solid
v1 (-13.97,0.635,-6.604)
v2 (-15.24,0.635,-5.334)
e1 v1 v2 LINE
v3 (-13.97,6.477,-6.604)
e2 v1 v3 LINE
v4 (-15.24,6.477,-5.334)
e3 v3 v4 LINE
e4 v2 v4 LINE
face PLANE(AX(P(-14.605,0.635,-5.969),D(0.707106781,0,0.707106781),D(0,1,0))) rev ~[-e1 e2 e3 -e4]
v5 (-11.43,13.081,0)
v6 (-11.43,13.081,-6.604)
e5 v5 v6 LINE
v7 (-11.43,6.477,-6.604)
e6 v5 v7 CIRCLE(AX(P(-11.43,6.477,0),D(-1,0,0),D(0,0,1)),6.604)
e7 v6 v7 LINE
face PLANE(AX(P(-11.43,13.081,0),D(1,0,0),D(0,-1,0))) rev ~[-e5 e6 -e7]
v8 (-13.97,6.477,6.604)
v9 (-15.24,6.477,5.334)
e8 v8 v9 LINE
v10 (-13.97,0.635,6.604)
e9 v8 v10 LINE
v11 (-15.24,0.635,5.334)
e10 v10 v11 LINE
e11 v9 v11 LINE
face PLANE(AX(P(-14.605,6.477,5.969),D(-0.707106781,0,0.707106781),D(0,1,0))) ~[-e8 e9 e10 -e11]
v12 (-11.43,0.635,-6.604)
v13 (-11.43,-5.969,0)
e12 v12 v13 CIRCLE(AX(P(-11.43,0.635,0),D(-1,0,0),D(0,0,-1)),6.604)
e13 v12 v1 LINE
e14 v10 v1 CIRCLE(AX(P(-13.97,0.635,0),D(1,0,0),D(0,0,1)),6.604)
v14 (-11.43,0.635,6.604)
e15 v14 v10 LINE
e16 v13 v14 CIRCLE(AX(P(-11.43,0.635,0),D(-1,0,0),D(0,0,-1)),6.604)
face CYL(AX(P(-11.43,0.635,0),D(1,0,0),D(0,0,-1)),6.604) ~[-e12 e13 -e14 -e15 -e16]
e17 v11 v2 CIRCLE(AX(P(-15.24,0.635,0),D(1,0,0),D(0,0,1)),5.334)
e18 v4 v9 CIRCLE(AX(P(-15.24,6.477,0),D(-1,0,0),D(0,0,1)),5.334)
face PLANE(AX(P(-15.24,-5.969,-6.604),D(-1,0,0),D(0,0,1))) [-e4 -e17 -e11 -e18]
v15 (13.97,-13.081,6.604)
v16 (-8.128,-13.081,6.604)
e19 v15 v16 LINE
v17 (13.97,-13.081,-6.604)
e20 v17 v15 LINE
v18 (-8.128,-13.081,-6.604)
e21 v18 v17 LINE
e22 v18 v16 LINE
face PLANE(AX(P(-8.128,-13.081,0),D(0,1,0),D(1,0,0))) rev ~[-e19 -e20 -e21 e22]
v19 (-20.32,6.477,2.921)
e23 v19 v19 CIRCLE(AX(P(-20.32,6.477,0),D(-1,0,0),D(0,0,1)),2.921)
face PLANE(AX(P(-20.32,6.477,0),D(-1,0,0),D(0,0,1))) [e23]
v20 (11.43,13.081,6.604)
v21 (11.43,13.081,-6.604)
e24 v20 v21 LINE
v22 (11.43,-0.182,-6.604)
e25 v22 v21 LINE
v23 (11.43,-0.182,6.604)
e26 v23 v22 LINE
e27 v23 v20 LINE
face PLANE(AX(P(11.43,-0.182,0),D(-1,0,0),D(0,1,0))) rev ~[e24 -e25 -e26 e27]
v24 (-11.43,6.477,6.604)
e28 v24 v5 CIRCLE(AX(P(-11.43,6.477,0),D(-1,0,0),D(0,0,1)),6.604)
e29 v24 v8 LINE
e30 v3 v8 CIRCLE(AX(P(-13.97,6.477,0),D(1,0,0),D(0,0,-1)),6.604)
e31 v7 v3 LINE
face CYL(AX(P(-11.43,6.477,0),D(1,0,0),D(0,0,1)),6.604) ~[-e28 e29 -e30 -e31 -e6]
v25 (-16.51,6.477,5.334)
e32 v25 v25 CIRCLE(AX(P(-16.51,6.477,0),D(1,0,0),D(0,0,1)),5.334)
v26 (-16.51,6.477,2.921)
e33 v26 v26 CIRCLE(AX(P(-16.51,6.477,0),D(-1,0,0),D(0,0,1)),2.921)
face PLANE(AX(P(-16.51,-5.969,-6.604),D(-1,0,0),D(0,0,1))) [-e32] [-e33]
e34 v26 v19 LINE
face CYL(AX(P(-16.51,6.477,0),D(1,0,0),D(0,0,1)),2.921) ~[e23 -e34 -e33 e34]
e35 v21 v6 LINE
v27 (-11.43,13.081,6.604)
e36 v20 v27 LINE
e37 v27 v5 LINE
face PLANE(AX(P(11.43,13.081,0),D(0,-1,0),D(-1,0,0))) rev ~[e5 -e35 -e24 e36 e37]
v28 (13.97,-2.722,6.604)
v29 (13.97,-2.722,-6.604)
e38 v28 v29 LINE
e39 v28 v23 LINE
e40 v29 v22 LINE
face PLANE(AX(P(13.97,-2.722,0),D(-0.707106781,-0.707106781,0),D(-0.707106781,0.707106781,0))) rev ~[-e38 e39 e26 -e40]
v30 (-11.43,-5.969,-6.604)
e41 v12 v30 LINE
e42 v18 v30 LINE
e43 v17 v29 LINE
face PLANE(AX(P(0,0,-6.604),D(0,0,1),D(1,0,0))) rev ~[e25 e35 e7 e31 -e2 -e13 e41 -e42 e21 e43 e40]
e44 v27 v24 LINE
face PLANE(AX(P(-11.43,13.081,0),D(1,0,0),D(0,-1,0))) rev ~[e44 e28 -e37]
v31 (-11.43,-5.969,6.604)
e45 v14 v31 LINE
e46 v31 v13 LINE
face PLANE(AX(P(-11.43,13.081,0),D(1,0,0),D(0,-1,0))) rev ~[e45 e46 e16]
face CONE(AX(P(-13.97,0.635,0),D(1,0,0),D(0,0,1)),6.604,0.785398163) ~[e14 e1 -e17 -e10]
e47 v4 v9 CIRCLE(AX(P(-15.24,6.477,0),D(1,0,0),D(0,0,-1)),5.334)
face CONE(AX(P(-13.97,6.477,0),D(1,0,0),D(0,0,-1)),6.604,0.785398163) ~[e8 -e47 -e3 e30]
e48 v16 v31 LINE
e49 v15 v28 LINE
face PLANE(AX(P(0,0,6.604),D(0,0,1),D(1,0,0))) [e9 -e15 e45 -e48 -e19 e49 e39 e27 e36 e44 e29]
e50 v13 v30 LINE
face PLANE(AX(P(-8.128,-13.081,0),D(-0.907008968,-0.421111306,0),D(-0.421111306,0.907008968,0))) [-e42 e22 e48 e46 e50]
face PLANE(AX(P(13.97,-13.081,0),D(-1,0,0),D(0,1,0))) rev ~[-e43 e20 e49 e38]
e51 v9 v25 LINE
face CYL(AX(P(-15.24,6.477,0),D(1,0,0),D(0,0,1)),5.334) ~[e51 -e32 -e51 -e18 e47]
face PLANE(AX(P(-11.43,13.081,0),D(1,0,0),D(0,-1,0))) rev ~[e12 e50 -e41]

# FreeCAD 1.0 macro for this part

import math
import FreeCAD as App
import Part
import Sketcher
Q = App.Units.Quantity


def edges_at(feature, points):
    """Names of the edges that pass closest to the given points."""
    edges = feature.Shape.Edges
    near = lambda p: min(range(len(edges)), key=lambda i: edges[i].distToShape(Part.Vertex(*p))[0])
    return sorted({f"Edge{near(p) + 1}" for p in points})

doc = App.newDocument("Part")
params = doc.addObject("Spreadsheet::Sheet", "Params")
for row, (alias, value) in enumerate([
    ("sketch1_width", "0.9 in"),
    ("pad1_length", "0.52 in"),
    ("sketch2_radius", "0.26 in"),
    ("sketch2_width", "0.23 in"),
    ("pad2_length", "0.15 in"),
    ("chamfer_size", "0.05 in"),
    ("sketch3_diameter", "0.42 in"),
    ("pad3_length", "0.05 in"),
    ("sketch4_diameter", "0.23 in"),
    ("pad4_length", "0.15 in"),
], start=1):
    params.set(f"A{row}", alias)
    params.set(f"B{row}", "=" + value)
    params.setAlias(f"B{row}", alias)

body = doc.addObject("PartDesign::Body", "Body")

# Sketch on XY plane
sketch1 = body.newObject("Sketcher::SketchObject", "Sketch")
sketch1.AttachmentSupport = (doc.getObject("XY_Plane"), [""])
sketch1.MapMode = "FlatFace"
sketch1.addGeometry(Part.LineSegment(App.Vector(-11.43, -5.969, 0), App.Vector(-8.128, -13.081, 0)), False)
sketch1.addGeometry(Part.LineSegment(App.Vector(-8.128, -13.081, 0), App.Vector(13.97, -13.081, 0)), False)
sketch1.addGeometry(Part.LineSegment(App.Vector(13.97, -13.081, 0), App.Vector(13.97, -2.722, 0)), False)
sketch1.addGeometry(Part.LineSegment(App.Vector(13.97, -2.722, 0), App.Vector(11.43, -0.182, 0)), False)
sketch1.addGeometry(Part.LineSegment(App.Vector(11.43, -0.182, 0), App.Vector(11.43, 13.081, 0)), False)
sketch1.addGeometry(Part.LineSegment(App.Vector(11.43, 13.081, 0), App.Vector(-11.43, 13.081, 0)), False)
sketch1.addGeometry(Part.LineSegment(App.Vector(-11.43, 13.081, 0), App.Vector(-11.43, -5.969, 0)), False)
sketch1.addConstraint(Sketcher.Constraint("Coincident", 0, 2, 1, 1))
sketch1.addConstraint(Sketcher.Constraint("Coincident", 1, 2, 2, 1))
sketch1.addConstraint(Sketcher.Constraint("Coincident", 2, 2, 3, 1))
sketch1.addConstraint(Sketcher.Constraint("Coincident", 3, 2, 4, 1))
sketch1.addConstraint(Sketcher.Constraint("Coincident", 4, 2, 5, 1))
sketch1.addConstraint(Sketcher.Constraint("Coincident", 5, 2, 6, 1))
sketch1.addConstraint(Sketcher.Constraint("Coincident", 6, 2, 0, 1))
sketch1.addConstraint(Sketcher.Constraint("Horizontal", 1))
sketch1.addConstraint(Sketcher.Constraint("Vertical", 2))
sketch1.addConstraint(Sketcher.Constraint("Vertical", 4))
sketch1.addConstraint(Sketcher.Constraint("Horizontal", 5))
sketch1.addConstraint(Sketcher.Constraint("Vertical", 6))
sketch1.addConstraint(Sketcher.Constraint("DistanceX", 5, 2, 5, 1, Q("0.9 in")))
sketch1.addConstraint(Sketcher.Constraint("Angle", 3, Q("135 deg")))
sketch1.addConstraint(Sketcher.Constraint("DistanceX", 3, 2, 2, 2, Q("0.1 in")))
sketch1.addConstraint(Sketcher.Constraint("DistanceX", 0, 2, 3, 2, Q("0.77 in")))
sketch1.addConstraint(Sketcher.Constraint("DistanceY", 1, 2, 4, 2, Q("1.03 in")))
sketch1.addConstraint(Sketcher.Constraint("DistanceY", 0, 2, 6, 2, Q("0.28 in")))
sketch1.addConstraint(Sketcher.Constraint("DistanceX", 0, 2, -1, 1, Q("0.32 in")))
sketch1.addConstraint(Sketcher.Constraint("DistanceY", 0, 2, -1, 1, Q("0.515 in")))
sketch1.addConstraint(Sketcher.Constraint("DistanceY", 2, 1, 2, 2, Q("10.359 mm")))
sketch1.setExpression("Constraints[12]", "Params.sketch1_width")
pad1 = body.newObject("PartDesign::Pad", "Pad")
pad1.Profile = sketch1
pad1.setExpression("Length", "Params.pad1_length")
pad1.Midplane = True

# Sketch on YZ plane
sketch2 = body.newObject("Sketcher::SketchObject", "Sketch001")
sketch2.AttachmentSupport = (doc.getObject("YZ_Plane"), [""])
sketch2.MapMode = "FlatFace"
sketch2.AttachmentOffset = App.Placement(App.Vector(0, 0, -0.45 * 25.4), App.Rotation())
sketch2.addGeometry(Part.ArcOfCircle(Part.Circle(App.Vector(0.635, 0, 0), App.Vector(0, 0, 1), 6.604), math.radians(90), math.radians(270)), False)
sketch2.addGeometry(Part.LineSegment(App.Vector(0.635, 6.604, 0), App.Vector(6.477, 6.604, 0)), False)
sketch2.addGeometry(Part.ArcOfCircle(Part.Circle(App.Vector(6.477, 0, 0), App.Vector(0, 0, 1), 6.604), math.radians(-90), math.radians(90)), False)
sketch2.addGeometry(Part.LineSegment(App.Vector(6.477, -6.604, 0), App.Vector(0.635, -6.604, 0)), False)
sketch2.addConstraint(Sketcher.Constraint("Tangent", 0, 1, 1, 1))
sketch2.addConstraint(Sketcher.Constraint("Tangent", 1, 2, 2, 2))
sketch2.addConstraint(Sketcher.Constraint("Tangent", 2, 1, 3, 1))
sketch2.addConstraint(Sketcher.Constraint("Tangent", 3, 2, 0, 2))
sketch2.addConstraint(Sketcher.Constraint("Horizontal", 1))
sketch2.addConstraint(Sketcher.Constraint("Horizontal", 3))
sketch2.addConstraint(Sketcher.Constraint("PointOnObject", 0, 3, -1))
sketch2.addConstraint(Sketcher.Constraint("Radius", 0, Q("0.26 in")))
sketch2.addConstraint(Sketcher.Constraint("DistanceX", 1, 1, 1, 2, Q("0.23 in")))
sketch2.addConstraint(Sketcher.Constraint("DistanceX", -1, 1, 0, 3, Q("0.025 in")))
sketch2.setExpression("Constraints[7]", "Params.sketch2_radius")
sketch2.setExpression("Constraints[8]", "Params.sketch2_width")
pad2 = body.newObject("PartDesign::Pad", "Pad001")
pad2.Profile = sketch2
pad2.setExpression("Length", "Params.pad2_length")
pad2.Reversed = True
doc.recompute()

chamfer = body.newObject("PartDesign::Chamfer", "Chamfer")
chamfer.Base = (pad2, edges_at(pad2, [
    (-15.24, 13.081, 0),
    (-15.24, 3.556, 6.604),
    (-15.24, -5.969, 0),
    (-15.24, 3.556, -6.604),
]))
chamfer.setExpression("Size", "Params.chamfer_size")

# Sketch on YZ plane
sketch3 = body.newObject("Sketcher::SketchObject", "Sketch002")
sketch3.AttachmentSupport = (doc.getObject("YZ_Plane"), [""])
sketch3.MapMode = "FlatFace"
sketch3.AttachmentOffset = App.Placement(App.Vector(0, 0, -0.6 * 25.4), App.Rotation())
sketch3.addGeometry(Part.Circle(App.Vector(6.477, 0, 0), App.Vector(0, 0, 1), 5.334), False)
sketch3.addConstraint(Sketcher.Constraint("PointOnObject", 0, 3, -1))
sketch3.addConstraint(Sketcher.Constraint("Diameter", 0, Q("0.42 in")))
sketch3.addConstraint(Sketcher.Constraint("DistanceX", -1, 1, 0, 3, Q("0.255 in")))
sketch3.setExpression("Constraints[1]", "Params.sketch3_diameter")
pad3 = body.newObject("PartDesign::Pad", "Pad002")
pad3.Profile = sketch3
pad3.setExpression("Length", "Params.pad3_length")
pad3.Reversed = True

# Sketch on YZ plane
sketch4 = body.newObject("Sketcher::SketchObject", "Sketch003")
sketch4.AttachmentSupport = (doc.getObject("YZ_Plane"), [""])
sketch4.MapMode = "FlatFace"
sketch4.AttachmentOffset = App.Placement(App.Vector(0, 0, -0.65 * 25.4), App.Rotation())
sketch4.addGeometry(Part.Circle(App.Vector(6.477, 0, 0), App.Vector(0, 0, 1), 2.921), False)
sketch4.addConstraint(Sketcher.Constraint("PointOnObject", 0, 3, -1))
sketch4.addConstraint(Sketcher.Constraint("Diameter", 0, Q("0.23 in")))
sketch4.addConstraint(Sketcher.Constraint("DistanceX", -1, 1, 0, 3, Q("0.255 in")))
sketch4.setExpression("Constraints[1]", "Params.sketch4_diameter")
pad4 = body.newObject("PartDesign::Pad", "Pad003")
pad4.Profile = sketch4
pad4.setExpression("Length", "Params.pad4_length")
pad4.Reversed = True

doc.recompute()
